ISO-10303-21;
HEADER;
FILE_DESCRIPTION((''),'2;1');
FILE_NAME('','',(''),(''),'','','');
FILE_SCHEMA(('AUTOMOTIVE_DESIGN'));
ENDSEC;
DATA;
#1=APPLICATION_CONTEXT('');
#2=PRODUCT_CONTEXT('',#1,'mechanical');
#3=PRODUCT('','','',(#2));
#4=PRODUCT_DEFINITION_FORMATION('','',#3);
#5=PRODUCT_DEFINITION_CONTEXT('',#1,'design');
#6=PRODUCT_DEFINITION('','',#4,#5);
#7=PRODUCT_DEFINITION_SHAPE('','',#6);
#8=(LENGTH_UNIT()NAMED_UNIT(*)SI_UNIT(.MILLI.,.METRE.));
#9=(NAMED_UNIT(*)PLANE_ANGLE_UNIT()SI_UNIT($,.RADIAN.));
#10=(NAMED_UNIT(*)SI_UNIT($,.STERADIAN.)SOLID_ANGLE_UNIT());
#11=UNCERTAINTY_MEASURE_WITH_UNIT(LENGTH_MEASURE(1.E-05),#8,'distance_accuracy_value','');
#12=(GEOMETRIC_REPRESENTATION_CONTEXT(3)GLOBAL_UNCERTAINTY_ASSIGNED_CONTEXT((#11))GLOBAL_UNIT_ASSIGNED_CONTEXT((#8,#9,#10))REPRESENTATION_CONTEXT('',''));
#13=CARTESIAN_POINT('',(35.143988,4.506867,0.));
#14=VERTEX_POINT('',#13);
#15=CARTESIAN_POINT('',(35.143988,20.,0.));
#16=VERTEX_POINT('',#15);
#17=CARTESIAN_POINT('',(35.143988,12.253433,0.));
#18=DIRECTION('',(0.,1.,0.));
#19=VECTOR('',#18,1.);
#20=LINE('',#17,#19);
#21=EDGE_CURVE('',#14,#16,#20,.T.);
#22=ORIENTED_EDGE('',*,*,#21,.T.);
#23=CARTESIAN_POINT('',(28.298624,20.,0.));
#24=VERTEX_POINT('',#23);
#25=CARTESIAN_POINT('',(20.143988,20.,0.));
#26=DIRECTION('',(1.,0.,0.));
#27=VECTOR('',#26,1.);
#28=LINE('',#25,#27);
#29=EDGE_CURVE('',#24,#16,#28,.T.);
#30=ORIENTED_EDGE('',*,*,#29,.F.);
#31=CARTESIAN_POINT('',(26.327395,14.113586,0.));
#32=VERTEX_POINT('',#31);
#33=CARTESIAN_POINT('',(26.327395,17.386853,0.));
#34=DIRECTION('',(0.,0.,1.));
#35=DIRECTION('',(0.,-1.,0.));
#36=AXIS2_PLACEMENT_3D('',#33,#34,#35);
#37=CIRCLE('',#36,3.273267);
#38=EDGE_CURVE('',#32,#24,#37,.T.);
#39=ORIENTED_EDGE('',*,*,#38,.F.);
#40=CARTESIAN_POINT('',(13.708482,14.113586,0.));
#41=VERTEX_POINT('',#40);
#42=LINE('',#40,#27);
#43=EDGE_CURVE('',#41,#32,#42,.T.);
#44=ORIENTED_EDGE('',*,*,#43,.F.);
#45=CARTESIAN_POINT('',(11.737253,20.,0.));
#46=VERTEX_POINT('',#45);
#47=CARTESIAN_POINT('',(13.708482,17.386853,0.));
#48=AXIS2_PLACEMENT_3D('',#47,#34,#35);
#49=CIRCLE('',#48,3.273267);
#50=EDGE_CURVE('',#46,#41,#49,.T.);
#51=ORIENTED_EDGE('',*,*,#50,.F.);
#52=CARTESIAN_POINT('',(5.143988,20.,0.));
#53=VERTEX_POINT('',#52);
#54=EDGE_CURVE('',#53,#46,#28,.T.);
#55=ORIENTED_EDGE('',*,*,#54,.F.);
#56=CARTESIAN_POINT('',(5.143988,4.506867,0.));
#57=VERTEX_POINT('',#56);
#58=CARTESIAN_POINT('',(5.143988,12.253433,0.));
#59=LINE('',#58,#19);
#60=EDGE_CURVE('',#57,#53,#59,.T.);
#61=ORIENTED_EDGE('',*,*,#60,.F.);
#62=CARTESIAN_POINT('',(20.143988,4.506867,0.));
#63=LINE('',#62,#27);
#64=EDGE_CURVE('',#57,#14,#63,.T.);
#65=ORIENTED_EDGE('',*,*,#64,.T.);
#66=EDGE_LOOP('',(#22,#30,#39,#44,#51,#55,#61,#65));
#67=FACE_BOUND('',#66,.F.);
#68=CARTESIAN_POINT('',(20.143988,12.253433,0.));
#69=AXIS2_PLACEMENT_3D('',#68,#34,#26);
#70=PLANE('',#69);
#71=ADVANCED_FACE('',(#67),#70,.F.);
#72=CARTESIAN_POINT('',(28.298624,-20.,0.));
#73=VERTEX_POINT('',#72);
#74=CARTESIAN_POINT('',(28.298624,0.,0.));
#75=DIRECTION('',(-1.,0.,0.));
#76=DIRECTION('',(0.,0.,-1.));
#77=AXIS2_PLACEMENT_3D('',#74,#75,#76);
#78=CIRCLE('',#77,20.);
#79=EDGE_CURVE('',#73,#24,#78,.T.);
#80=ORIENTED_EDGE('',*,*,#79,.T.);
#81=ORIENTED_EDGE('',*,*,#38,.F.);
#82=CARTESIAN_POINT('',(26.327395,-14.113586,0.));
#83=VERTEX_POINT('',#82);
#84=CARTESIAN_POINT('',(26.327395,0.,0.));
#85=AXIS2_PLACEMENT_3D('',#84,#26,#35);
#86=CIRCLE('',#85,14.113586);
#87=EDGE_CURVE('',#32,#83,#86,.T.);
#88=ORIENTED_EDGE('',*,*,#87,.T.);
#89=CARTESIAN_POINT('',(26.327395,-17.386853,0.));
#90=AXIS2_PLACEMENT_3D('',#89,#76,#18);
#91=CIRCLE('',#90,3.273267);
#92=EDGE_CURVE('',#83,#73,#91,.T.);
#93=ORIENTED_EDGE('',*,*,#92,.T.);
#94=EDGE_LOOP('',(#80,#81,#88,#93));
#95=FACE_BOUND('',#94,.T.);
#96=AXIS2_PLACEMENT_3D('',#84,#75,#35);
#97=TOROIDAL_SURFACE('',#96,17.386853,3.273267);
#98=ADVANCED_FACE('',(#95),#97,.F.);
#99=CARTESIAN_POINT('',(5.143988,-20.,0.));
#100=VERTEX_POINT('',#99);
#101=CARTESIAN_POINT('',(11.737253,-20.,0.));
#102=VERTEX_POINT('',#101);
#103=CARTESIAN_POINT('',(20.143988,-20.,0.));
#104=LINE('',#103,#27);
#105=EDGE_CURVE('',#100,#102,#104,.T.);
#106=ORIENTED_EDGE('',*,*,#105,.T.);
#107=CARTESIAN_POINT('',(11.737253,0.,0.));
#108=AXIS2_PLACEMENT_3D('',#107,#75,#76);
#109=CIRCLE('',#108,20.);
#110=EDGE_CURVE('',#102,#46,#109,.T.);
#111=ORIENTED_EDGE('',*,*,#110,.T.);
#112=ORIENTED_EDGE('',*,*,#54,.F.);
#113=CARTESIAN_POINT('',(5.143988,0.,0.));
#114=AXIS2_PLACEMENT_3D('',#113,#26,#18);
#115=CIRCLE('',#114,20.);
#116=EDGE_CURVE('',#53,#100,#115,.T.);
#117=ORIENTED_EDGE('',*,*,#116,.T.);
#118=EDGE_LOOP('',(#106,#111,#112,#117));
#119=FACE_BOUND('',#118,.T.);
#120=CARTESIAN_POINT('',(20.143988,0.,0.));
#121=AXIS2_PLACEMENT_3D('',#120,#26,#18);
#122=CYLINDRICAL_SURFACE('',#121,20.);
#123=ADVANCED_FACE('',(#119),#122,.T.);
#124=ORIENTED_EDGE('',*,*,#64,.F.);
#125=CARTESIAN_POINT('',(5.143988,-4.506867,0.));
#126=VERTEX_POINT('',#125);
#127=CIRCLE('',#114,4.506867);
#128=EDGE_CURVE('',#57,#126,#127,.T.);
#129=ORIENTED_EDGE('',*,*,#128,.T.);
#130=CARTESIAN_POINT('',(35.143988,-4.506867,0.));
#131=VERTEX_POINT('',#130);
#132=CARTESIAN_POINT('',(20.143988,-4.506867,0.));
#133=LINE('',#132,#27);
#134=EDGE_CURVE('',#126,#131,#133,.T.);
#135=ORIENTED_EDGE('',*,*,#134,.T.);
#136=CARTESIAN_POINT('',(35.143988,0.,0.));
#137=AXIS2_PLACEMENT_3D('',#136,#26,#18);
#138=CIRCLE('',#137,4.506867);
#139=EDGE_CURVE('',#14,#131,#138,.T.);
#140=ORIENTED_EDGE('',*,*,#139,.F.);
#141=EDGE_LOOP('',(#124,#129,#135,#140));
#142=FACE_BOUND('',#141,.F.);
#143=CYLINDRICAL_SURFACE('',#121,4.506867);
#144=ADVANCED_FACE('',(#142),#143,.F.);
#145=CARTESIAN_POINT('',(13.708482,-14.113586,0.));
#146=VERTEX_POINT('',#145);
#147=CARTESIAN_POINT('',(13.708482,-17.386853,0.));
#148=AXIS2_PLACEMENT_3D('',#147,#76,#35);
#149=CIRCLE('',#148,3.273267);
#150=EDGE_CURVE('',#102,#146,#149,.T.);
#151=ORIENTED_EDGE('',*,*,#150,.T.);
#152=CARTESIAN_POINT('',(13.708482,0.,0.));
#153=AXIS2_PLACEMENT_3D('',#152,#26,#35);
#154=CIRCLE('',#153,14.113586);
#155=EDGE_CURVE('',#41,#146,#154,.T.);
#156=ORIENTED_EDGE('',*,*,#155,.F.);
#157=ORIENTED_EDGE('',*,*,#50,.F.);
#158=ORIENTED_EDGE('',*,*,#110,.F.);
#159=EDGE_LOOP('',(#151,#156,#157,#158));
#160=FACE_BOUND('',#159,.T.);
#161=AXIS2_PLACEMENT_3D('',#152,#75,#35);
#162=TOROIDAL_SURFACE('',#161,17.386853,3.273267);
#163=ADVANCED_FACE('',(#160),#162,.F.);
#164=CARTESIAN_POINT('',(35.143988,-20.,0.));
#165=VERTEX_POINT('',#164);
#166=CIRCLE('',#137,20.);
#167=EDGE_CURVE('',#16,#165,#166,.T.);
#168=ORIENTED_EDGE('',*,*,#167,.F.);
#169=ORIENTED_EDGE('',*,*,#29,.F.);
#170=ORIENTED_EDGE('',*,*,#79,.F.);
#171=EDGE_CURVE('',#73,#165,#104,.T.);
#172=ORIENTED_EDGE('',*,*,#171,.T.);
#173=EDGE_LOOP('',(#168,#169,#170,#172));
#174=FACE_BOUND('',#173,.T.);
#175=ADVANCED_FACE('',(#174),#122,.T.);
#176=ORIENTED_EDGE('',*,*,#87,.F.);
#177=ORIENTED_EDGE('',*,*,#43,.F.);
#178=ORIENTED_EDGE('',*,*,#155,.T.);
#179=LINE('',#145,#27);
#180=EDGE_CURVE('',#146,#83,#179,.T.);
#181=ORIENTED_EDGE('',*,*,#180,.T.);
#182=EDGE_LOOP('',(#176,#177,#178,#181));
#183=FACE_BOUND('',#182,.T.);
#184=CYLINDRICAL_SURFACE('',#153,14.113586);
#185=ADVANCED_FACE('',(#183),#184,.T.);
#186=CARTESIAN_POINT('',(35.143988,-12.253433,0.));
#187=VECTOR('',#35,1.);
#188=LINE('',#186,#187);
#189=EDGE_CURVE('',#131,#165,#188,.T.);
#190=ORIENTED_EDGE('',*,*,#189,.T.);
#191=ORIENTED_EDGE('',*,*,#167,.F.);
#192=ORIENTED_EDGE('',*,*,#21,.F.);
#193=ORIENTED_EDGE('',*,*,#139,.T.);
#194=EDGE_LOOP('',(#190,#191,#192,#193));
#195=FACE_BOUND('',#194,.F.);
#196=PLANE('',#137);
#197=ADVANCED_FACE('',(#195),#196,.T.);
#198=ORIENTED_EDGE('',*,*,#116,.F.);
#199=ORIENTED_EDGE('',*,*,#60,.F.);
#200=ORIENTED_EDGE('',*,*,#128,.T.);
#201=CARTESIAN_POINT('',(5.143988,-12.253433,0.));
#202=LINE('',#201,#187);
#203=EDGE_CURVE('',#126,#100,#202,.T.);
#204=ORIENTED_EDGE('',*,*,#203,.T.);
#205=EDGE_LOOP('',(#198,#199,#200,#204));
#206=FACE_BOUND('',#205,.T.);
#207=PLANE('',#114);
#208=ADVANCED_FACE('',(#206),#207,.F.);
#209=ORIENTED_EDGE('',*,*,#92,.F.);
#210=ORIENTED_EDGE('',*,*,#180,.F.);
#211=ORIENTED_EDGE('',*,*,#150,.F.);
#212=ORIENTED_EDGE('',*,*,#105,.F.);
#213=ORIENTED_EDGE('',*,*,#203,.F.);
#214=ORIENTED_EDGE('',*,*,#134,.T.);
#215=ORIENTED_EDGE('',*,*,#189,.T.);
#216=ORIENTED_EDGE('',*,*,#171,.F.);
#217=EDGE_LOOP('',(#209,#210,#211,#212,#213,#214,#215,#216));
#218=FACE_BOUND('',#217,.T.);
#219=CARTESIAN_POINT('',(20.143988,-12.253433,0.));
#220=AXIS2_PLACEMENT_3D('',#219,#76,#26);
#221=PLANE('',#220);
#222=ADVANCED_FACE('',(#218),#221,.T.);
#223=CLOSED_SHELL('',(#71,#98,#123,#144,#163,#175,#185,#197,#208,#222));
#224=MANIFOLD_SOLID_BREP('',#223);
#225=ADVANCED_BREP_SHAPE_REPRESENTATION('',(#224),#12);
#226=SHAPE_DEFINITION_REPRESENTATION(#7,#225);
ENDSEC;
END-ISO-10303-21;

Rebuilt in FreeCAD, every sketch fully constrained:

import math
import FreeCAD as App
import Part
import Sketcher

V = App.Vector
Q = App.Units.Quantity


def add_polygon(sketch, points):
    """Adds a closed chain of lines whose ends are joined by coincident constraints."""
    first, n = sketch.GeometryCount, len(points)
    for a, b in zip(points, points[1:] + points[:1]):
        sketch.addGeometry(Part.LineSegment(App.Vector(*a, 0), App.Vector(*b, 0)), False)
    for i in range(n):
        sketch.addConstraint(Sketcher.Constraint("Coincident", first + i, 2, first + (i + 1) % n, 1))

doc = App.newDocument("Part")
params = doc.addObject("Spreadsheet::Sheet", "Params")
for row, (alias, value) in enumerate([
    ("sketch1_width", "30 mm"),
    ("revolution_angle", "180 deg"),
    ("groove_angle", "360 deg"),
], start=1):
    params.set(f"A{row}", alias)
    params.set(f"B{row}", "=" + value)
    params.setAlias(f"B{row}", alias)

body = doc.addObject("PartDesign::Body", "Body")

sketch1 = doc.addObject("Sketcher::SketchObject", "Sketch")
body.addObject(sketch1)
sketch1.AttachmentSupport = (doc.XY_Plane, [""])
sketch1.MapMode = "FlatFace"
add_polygon(sketch1, [(5, 20), (5, 5), (35, 5), (35, 20)])
sketch1.addConstraint(Sketcher.Constraint("Vertical", 0))
sketch1.addConstraint(Sketcher.Constraint("Horizontal", 1))
sketch1.addConstraint(Sketcher.Constraint("Vertical", 2))
sketch1.addConstraint(Sketcher.Constraint("Horizontal", 3))
sketch1.addConstraint(Sketcher.Constraint("DistanceX", 1, 1, 1, 2, Q("30 mm")))
sketch1.addConstraint(Sketcher.Constraint("DistanceY", -1, 1, 2, 2, Q("20 mm")))
sketch1.addConstraint(Sketcher.Constraint("DistanceY", 0, 2, 0, 1, Q("15.493133 mm")))
sketch1.addConstraint(Sketcher.Constraint("DistanceX", -1, 1, 0, 2, Q("5.143988 mm")))
sketch1.setExpression("Constraints[8]", "Params.sketch1_width")
revolution = doc.addObject("PartDesign::Revolution", "Revolution")
body.addObject(revolution)
revolution.Profile = sketch1
revolution.ReferenceAxis = (sketch1, ["H_Axis"])
revolution.setExpression("Angle", "Params.revolution_angle")

sketch2 = doc.addObject("Sketcher::SketchObject", "Sketch001")
body.addObject(sketch2)
sketch2.AttachmentSupport = (doc.XY_Plane, [""])
sketch2.MapMode = "FlatFace"
sketch2.addGeometry(Part.ArcOfCircle(Part.Circle(V(13.7, -17.4, 0), V(0, 0, 1), 3.3), math.radians(90), math.radians(270)), False)
sketch2.addGeometry(Part.LineSegment(V(13.7, -14.1, 0), V(26.3, -14.1, 0)), False)
sketch2.addGeometry(Part.ArcOfCircle(Part.Circle(V(26.3, -17.4, 0), V(0, 0, 1), 3.3), math.radians(-90), math.radians(90)), False)
sketch2.addGeometry(Part.LineSegment(V(26.3, -20.7, 0), V(13.7, -20.7, 0)), False)
sketch2.addConstraint(Sketcher.Constraint("Tangent", 0, 1, 1, 1))
sketch2.addConstraint(Sketcher.Constraint("Tangent", 1, 2, 2, 2))
sketch2.addConstraint(Sketcher.Constraint("Tangent", 2, 1, 3, 1))
sketch2.addConstraint(Sketcher.Constraint("Tangent", 3, 2, 0, 2))
sketch2.addConstraint(Sketcher.Constraint("Horizontal", 1))
sketch2.addConstraint(Sketcher.Constraint("Horizontal", 3))
sketch2.addConstraint(Sketcher.Constraint("Radius", 0, Q("3.273267 mm")))
sketch2.addConstraint(Sketcher.Constraint("DistanceX", 1, 1, 1, 2, Q("12.618913 mm")))
sketch2.addConstraint(Sketcher.Constraint("DistanceY", 2, 1, -1, 1, Q("20.66012 mm")))
sketch2.addConstraint(Sketcher.Constraint("DistanceX", -1, 1, 0, 3, Q("13.708482 mm")))
groove = doc.addObject("PartDesign::Groove", "Groove")
body.addObject(groove)
groove.Profile = sketch2
groove.ReferenceAxis = (sketch2, ["H_Axis"])
groove.setExpression("Angle", "Params.groove_angle")

doc.recompute()
